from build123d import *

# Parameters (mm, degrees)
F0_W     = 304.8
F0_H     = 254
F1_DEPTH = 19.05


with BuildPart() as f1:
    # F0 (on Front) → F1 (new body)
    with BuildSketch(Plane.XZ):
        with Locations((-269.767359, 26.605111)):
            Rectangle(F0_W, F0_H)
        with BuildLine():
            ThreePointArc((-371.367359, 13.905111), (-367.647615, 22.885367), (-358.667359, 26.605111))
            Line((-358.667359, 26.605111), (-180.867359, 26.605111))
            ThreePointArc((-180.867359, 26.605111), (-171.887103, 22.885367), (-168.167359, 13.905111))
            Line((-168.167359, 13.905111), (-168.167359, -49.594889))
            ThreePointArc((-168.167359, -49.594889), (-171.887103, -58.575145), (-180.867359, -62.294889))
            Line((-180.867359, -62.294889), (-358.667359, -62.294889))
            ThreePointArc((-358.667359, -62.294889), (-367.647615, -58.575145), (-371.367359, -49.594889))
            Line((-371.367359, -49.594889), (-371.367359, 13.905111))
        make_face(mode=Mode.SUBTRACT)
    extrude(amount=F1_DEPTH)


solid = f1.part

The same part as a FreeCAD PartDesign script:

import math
import FreeCAD as App
import Part
import Sketcher

V = App.Vector
Q = App.Units.Quantity


def add_polygon(sketch, points):
    """Adds a closed chain of lines whose ends are joined by coincident constraints."""
    first, n = sketch.GeometryCount, len(points)
    for a, b in zip(points, points[1:] + points[:1]):
        sketch.addGeometry(Part.LineSegment(App.Vector(*a, 0), App.Vector(*b, 0)), False)
    for i in range(n):
        sketch.addConstraint(Sketcher.Constraint("Coincident", first + i, 2, first + (i + 1) % n, 1))

doc = App.newDocument("Part")
body = doc.addObject("PartDesign::Body", "Body")

# Sketch on XZ plane
sketch1 = body.newObject("Sketcher::SketchObject", "Sketch")
sketch1.AttachmentSupport = (doc.getObject("XZ_Plane"), [""])
sketch1.MapMode = "FlatFace"
add_polygon(sketch1, [(-422, 154), (-422, -100), (-117, -100), (-117, 154)])  # lines 0-3
sketch1.addGeometry(Part.LineSegment(V(-371, -50, 0), V(-371, 14, 0)), False)  # 4
sketch1.addGeometry(Part.ArcOfCircle(Part.Circle(V(-359, 14, 0), V(0, 0, 1), 13), math.radians(90), math.radians(180)), False)  # 5
sketch1.addGeometry(Part.LineSegment(V(-359, 27, 0), V(-181, 27, 0)), False)  # 6
sketch1.addGeometry(Part.ArcOfCircle(Part.Circle(V(-181, 14, 0), V(0, 0, 1), 13), math.radians(0), math.radians(90)), False)  # 7
sketch1.addGeometry(Part.LineSegment(V(-168, 14, 0), V(-168, -50, 0)), False)  # 8
sketch1.addGeometry(Part.ArcOfCircle(Part.Circle(V(-181, -50, 0), V(0, 0, 1), 13), math.radians(-90), math.radians(0)), False)  # 9
sketch1.addGeometry(Part.LineSegment(V(-181, -62, 0), V(-359, -62, 0)), False)  # 10
sketch1.addGeometry(Part.ArcOfCircle(Part.Circle(V(-359, -50, 0), V(0, 0, 1), 13), math.radians(-180), math.radians(-90)), False)  # 11
sketch1.addConstraint([
    Sketcher.Constraint("Tangent", 4, 2, 5, 2),
    Sketcher.Constraint("Tangent", 5, 1, 6, 1),
    Sketcher.Constraint("Tangent", 6, 2, 7, 2),
    Sketcher.Constraint("Tangent", 7, 1, 8, 1),
    Sketcher.Constraint("Tangent", 8, 2, 9, 2),
    Sketcher.Constraint("Tangent", 9, 1, 10, 1),
    Sketcher.Constraint("Tangent", 10, 2, 11, 2),
    Sketcher.Constraint("Tangent", 11, 1, 4, 1),
    Sketcher.Constraint("Vertical", 0),
    Sketcher.Constraint("Horizontal", 1),
    Sketcher.Constraint("Vertical", 2),
    Sketcher.Constraint("Horizontal", 3),
    Sketcher.Constraint("Vertical", 4),
    Sketcher.Constraint("Horizontal", 6),
    Sketcher.Constraint("Vertical", 8),
    Sketcher.Constraint("Horizontal", 10),
    Sketcher.Constraint("Equal", 5, 7),
    Sketcher.Constraint("Equal", 7, 9),
    Sketcher.Constraint("Equal", 9, 11),
    Sketcher.Constraint("Radius", 5, Q("0.5 in")),
    Sketcher.Constraint("DistanceX", 1, 1, 1, 2, Q("12 in")),
    Sketcher.Constraint("DistanceX", 6, 1, 6, 2, Q("7 in")),
    Sketcher.Constraint("DistanceY", 0, 2, 0, 1, Q("10 in")),
    Sketcher.Constraint("DistanceY", 4, 1, 4, 2, Q("2.5 in")),
    Sketcher.Constraint("DistanceY", 0, 2, 11, 3, Q("2 in")),
    Sketcher.Constraint("DistanceX", 0, 2, 4, 2, Q("2 in")),
    Sketcher.Constraint("DistanceX", 5, 3, -1, 1, Q("358.667359 mm")),
    Sketcher.Constraint("DistanceY", -1, 1, 5, 3, Q("13.905111 mm")),
])
pad1 = body.newObject("PartDesign::Pad", "Pad")
pad1.Profile = sketch1
pad1.Length = Q("0.75 in")

doc.recompute()
